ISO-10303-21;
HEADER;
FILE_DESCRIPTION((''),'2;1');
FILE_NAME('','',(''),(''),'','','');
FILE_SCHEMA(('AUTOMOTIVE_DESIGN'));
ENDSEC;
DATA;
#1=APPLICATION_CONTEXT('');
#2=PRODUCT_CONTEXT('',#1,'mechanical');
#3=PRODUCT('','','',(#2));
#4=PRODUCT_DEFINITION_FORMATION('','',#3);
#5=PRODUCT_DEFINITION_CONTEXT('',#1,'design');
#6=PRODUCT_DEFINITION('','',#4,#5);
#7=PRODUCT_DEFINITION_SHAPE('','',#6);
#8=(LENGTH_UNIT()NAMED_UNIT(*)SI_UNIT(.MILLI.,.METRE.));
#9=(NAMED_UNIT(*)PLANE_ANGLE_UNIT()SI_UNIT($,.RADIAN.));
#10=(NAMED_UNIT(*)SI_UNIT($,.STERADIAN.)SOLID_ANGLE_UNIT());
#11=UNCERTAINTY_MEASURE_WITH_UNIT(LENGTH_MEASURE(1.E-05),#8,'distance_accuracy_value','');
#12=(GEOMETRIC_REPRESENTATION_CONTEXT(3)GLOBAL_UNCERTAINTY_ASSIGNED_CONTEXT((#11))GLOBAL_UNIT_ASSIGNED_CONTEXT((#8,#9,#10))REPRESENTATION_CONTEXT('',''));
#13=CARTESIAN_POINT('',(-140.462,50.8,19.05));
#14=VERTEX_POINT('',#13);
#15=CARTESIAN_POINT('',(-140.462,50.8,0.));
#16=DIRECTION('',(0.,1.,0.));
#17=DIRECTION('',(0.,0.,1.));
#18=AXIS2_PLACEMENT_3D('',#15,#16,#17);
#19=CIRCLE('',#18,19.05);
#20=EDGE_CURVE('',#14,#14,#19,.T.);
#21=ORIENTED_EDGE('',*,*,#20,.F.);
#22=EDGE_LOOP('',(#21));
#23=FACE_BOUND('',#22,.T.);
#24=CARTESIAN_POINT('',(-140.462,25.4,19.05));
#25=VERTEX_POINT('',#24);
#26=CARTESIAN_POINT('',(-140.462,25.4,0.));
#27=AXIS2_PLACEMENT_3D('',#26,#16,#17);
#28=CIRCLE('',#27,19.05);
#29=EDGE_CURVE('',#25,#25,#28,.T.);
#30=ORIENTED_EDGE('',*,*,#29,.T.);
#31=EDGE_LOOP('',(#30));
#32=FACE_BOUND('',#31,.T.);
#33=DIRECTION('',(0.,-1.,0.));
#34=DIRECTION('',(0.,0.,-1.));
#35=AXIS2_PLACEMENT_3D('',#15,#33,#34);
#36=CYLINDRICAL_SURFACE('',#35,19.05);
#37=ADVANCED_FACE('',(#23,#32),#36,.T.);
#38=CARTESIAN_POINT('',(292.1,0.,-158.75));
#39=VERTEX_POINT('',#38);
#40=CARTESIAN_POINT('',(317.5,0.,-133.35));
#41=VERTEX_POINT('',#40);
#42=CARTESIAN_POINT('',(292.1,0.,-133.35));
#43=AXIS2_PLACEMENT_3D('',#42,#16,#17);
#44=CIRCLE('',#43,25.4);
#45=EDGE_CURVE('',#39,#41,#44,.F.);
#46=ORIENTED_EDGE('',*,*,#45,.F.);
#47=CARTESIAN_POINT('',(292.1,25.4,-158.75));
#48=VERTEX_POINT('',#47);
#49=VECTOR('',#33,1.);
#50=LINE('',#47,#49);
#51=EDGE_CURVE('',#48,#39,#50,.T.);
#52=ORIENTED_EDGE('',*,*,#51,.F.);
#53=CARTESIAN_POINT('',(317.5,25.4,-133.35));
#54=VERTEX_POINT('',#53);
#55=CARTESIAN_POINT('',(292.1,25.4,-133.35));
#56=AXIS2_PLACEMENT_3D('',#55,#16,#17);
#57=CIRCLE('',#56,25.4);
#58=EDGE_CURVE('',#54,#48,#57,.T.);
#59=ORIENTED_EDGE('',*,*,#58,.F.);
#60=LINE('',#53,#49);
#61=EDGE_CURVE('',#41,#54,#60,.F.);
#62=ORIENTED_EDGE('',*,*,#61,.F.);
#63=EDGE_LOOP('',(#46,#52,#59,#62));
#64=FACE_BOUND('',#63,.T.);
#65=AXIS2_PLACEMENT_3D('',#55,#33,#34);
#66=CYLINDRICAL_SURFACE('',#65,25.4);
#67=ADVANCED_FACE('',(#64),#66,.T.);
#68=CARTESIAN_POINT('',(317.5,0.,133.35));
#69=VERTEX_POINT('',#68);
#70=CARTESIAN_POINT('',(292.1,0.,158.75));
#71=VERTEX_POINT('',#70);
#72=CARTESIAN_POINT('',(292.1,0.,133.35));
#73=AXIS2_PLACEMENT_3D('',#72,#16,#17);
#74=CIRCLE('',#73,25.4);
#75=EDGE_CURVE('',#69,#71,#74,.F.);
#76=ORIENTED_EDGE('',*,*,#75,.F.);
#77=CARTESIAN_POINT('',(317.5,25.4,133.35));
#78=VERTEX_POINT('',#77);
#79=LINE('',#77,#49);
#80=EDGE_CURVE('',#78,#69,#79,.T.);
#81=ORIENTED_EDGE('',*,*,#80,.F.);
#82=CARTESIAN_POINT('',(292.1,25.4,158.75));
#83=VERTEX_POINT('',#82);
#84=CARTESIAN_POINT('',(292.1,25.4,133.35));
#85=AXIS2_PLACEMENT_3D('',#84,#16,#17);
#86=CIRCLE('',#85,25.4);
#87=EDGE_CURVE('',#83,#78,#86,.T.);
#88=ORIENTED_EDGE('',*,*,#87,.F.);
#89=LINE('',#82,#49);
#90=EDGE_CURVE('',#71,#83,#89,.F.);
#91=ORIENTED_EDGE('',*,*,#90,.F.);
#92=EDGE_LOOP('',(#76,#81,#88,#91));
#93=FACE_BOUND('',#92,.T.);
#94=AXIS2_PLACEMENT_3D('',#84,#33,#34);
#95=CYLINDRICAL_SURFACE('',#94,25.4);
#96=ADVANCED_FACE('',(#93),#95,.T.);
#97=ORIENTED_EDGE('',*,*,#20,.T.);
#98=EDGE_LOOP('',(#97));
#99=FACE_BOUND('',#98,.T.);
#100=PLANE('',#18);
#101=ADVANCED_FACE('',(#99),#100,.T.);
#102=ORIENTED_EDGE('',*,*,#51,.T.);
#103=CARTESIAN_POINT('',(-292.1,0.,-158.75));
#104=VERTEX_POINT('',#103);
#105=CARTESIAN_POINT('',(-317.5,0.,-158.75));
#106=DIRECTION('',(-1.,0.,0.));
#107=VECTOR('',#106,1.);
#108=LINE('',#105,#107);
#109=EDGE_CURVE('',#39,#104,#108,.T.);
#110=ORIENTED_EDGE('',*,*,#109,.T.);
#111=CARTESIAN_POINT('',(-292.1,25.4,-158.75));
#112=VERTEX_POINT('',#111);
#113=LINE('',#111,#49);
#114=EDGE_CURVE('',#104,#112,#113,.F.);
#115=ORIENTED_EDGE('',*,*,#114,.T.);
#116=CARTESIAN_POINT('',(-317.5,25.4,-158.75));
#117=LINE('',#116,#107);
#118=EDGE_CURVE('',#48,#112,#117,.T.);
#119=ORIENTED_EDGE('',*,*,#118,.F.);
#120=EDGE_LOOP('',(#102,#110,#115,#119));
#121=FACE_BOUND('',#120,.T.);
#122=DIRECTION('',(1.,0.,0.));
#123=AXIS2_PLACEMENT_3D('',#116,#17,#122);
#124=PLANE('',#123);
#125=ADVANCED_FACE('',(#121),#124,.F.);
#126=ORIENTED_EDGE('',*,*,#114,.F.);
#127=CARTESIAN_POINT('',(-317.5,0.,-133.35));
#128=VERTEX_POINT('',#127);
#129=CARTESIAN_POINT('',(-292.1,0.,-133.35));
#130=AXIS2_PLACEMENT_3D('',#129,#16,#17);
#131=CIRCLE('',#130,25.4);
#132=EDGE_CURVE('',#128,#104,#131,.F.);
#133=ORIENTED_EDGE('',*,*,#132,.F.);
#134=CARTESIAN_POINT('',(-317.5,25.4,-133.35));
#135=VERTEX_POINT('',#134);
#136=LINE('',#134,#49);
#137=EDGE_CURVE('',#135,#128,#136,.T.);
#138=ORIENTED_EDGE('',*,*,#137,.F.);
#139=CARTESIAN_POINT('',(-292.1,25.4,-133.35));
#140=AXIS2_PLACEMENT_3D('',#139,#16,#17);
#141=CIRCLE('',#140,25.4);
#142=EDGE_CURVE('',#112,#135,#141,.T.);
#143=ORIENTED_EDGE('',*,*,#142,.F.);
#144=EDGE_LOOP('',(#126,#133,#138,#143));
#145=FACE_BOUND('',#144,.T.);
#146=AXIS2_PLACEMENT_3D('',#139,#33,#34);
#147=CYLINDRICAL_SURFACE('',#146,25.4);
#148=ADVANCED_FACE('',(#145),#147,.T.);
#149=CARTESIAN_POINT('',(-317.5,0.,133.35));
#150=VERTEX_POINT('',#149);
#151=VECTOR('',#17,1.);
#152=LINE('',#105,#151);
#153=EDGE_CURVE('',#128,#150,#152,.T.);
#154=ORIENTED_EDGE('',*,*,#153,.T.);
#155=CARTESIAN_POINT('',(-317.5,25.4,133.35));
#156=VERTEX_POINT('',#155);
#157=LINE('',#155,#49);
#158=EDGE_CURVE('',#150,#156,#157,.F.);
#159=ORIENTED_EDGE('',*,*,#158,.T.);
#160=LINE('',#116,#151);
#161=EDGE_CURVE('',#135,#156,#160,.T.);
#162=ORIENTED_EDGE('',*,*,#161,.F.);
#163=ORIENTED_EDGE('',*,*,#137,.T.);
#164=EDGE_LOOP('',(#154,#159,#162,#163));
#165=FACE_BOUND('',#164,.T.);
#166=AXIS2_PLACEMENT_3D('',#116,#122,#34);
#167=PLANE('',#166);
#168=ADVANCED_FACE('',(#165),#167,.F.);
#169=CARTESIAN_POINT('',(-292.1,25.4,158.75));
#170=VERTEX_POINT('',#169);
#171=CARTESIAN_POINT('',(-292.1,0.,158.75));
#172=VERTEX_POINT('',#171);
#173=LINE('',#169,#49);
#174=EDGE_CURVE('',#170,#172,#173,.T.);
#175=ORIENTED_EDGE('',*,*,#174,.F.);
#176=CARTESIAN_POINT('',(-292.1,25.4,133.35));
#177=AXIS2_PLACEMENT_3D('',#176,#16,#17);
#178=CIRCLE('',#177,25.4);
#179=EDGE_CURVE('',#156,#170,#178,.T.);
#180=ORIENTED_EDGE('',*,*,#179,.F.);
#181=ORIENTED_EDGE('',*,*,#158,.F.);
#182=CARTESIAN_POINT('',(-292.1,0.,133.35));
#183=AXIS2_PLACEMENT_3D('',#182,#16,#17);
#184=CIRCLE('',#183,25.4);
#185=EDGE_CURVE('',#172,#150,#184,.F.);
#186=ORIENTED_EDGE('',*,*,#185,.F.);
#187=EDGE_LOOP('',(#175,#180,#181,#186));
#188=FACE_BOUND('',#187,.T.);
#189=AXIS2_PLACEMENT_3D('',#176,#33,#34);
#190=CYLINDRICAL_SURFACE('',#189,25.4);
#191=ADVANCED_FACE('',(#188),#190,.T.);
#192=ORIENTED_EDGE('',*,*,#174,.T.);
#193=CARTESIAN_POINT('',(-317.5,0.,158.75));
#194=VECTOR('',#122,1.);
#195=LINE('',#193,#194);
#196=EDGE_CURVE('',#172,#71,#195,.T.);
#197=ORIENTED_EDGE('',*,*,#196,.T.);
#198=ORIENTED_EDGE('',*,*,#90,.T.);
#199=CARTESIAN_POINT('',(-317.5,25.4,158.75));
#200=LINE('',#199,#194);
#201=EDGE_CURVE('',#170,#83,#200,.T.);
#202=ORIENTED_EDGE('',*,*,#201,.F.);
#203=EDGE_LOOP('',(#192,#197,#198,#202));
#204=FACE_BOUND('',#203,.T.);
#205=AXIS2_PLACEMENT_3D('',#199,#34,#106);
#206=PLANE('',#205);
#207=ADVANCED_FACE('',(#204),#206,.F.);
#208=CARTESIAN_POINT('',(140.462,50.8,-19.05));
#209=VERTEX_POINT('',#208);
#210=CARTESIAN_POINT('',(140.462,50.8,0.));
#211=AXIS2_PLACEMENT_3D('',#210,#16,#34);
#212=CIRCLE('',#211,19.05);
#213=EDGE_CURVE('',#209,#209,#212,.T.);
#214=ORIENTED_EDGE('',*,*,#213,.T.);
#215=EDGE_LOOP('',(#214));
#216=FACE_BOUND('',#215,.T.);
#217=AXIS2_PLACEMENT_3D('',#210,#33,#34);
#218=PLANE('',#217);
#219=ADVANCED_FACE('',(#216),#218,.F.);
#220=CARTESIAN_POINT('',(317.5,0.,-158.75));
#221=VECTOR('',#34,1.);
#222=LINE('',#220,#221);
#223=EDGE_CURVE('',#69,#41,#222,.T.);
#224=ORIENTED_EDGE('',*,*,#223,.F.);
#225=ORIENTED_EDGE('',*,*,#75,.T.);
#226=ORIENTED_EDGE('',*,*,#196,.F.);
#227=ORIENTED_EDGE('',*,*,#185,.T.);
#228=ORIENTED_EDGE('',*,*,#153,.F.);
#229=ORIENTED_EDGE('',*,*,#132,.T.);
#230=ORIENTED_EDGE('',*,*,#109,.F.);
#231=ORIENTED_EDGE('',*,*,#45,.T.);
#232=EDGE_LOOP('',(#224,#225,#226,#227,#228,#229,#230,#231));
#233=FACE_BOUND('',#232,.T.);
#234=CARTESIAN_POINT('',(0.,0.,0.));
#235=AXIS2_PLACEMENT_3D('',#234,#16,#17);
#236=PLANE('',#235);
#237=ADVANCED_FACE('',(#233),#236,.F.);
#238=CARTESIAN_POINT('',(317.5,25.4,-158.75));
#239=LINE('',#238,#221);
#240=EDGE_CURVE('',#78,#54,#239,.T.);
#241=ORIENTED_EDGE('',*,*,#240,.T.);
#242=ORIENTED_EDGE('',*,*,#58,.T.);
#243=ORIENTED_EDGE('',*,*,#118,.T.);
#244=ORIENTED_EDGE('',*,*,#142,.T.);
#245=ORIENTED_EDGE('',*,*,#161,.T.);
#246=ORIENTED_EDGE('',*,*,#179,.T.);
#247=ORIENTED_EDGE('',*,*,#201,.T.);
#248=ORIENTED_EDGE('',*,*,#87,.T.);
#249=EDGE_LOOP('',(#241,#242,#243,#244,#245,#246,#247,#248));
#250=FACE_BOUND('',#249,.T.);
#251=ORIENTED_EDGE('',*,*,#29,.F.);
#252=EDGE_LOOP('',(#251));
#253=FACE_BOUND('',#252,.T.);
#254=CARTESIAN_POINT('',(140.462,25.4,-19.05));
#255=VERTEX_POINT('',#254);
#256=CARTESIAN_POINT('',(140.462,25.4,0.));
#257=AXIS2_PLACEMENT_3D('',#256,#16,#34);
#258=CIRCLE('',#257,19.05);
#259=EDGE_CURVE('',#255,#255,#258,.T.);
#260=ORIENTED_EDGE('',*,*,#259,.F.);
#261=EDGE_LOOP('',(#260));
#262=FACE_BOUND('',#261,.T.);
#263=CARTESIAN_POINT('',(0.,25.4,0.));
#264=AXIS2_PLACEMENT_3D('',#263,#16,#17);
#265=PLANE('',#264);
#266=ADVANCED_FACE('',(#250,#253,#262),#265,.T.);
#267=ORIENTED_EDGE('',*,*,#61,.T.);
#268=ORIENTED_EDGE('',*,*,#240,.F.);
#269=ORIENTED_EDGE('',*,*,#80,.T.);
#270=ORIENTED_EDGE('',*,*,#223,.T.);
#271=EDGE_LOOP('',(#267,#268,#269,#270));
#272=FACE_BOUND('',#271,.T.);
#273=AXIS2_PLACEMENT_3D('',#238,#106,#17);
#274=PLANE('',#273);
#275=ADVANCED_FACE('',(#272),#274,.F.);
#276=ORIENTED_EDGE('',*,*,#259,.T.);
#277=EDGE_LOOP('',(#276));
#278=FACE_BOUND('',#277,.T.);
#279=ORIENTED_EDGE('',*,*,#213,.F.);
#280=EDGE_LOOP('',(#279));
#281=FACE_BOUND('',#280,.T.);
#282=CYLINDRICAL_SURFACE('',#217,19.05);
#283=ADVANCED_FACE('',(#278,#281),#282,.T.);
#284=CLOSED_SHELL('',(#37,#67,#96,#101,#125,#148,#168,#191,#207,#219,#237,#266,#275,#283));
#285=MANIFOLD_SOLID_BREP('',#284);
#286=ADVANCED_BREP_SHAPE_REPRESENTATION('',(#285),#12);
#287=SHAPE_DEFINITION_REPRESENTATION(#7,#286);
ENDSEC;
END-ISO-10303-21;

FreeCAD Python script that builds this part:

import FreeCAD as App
import Part
import Sketcher
from FreeCAD import Vector
Q = App.Units.Quantity


def edges_at(feature, points):
    """Names of the edges that pass closest to the given points."""
    edges = feature.Shape.Edges
    near = lambda p: min(range(len(edges)), key=lambda i: edges[i].distToShape(Part.Vertex(*p))[0])
    return sorted({f"Edge{near(p) + 1}" for p in points})


def add_polygon(sketch, points):
    """Adds a closed chain of lines whose ends are joined by coincident constraints."""
    first, n = sketch.GeometryCount, len(points)
    for a, b in zip(points, points[1:] + points[:1]):
        sketch.addGeometry(Part.LineSegment(App.Vector(*a, 0), App.Vector(*b, 0)), False)
    for i in range(n):
        sketch.addConstraint(Sketcher.Constraint("Coincident", first + i, 2, first + (i + 1) % n, 1))

doc = App.newDocument("Part")
params = doc.addObject("Spreadsheet::Sheet", "Params")
for row, (alias, value) in enumerate([
    ("sketch1_width", "25 in"),
    ("sketch1_height", "12.5 in"),
    ("pad1_length", "1 in"),
    ("sketch2_diameter", "1.5 in"),
    ("pad2_length", "1 in"),
    ("fillet_radius", "1 in"),
], start=1):
    params.set(f"A{row}", alias)
    params.set(f"B{row}", "=" + value)
    params.setAlias(f"B{row}", alias)

body = doc.addObject("PartDesign::Body", "Body")

# Sketch on XZ plane
sketch1 = doc.addObject("Sketcher::SketchObject", "Sketch")
body.addObject(sketch1)
sketch1.AttachmentSupport = (doc.XZ_Plane, [""])
sketch1.MapMode = "FlatFace"
add_polygon(sketch1, [(-318, -159), (-318, 159), (318, 159), (318, -159)])  # lines 0-3
sketch1.addConstraint([
    Sketcher.Constraint("Vertical", 0),
    Sketcher.Constraint("Horizontal", 1),
    Sketcher.Constraint("Vertical", 2),
    Sketcher.Constraint("Horizontal", 3),
    Sketcher.Constraint("Symmetric", 0, 2, 2, 2, -1, 1),
    Sketcher.Constraint("DistanceX", 1, 1, 1, 2, Q("25 in")),
    Sketcher.Constraint("DistanceY", 0, 1, 0, 2, Q("12.5 in")),
])
sketch1.setExpression("Constraints[9]", "Params.sketch1_width")
sketch1.setExpression("Constraints[10]", "Params.sketch1_height")
pad1 = doc.addObject("PartDesign::Pad", "Pad")
body.addObject(pad1)
pad1.Profile = sketch1
pad1.setExpression("Length", "Params.pad1_length")
pad1.Reversed = True

# Sketch on XZ plane
sketch2 = doc.addObject("Sketcher::SketchObject", "Sketch001")
body.addObject(sketch2)
sketch2.AttachmentSupport = (doc.XZ_Plane, [""])
sketch2.MapMode = "FlatFace"
sketch2.AttachmentOffset = App.Placement(Vector(0, 0, -1 * 25.4), App.Rotation())
sketch2.addGeometry([
    Part.Circle(Vector(-140, 0, 0), Vector(0, 0, 1), 19),
    Part.Circle(Vector(140, 0, 0), Vector(0, 0, 1), 19),
], False)
sketch2.addConstraint([
    Sketcher.Constraint("Equal", 0, 1),
    Sketcher.Constraint("Symmetric", 0, 3, 1, 3, -1, 1),
    Sketcher.Constraint("PointOnObject", 0, 3, -1),
    Sketcher.Constraint("Diameter", 0, Q("1.5 in")),
    Sketcher.Constraint("DistanceX", 0, 3, -1, 1, Q("5.53 in")),
])
sketch2.setExpression("Constraints[3]", "Params.sketch2_diameter")
pad2 = doc.addObject("PartDesign::Pad", "Pad001")
body.addObject(pad2)
pad2.Profile = sketch2
pad2.setExpression("Length", "Params.pad2_length")
pad2.Reversed = True
doc.recompute()

fillet = doc.addObject("PartDesign::Fillet", "Fillet")
body.addObject(fillet)
fillet.Base = (pad2, edges_at(pad2, [
    (317.5, 12.7, 158.75),
    (-317.5, 12.7, 158.75),
    (-317.5, 12.7, -158.75),
    (317.5, 12.7, -158.75),
]))
fillet.setExpression("Radius", "Params.fillet_radius")

doc.recompute()
